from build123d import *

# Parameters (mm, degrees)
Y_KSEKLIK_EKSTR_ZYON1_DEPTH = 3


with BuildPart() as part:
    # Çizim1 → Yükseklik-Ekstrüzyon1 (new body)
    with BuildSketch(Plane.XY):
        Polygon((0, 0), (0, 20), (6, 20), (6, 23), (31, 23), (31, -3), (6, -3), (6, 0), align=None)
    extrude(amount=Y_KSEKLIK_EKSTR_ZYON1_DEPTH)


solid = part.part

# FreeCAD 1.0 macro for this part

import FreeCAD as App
import Part
import Sketcher

V = App.Vector
Q = App.Units.Quantity


def add_polygon(sketch, points):
    """Adds a closed chain of lines whose ends are joined by coincident constraints."""
    first, n = sketch.GeometryCount, len(points)
    for a, b in zip(points, points[1:] + points[:1]):
        sketch.addGeometry(Part.LineSegment(App.Vector(*a, 0), App.Vector(*b, 0)), False)
    for i in range(n):
        sketch.addConstraint(Sketcher.Constraint("Coincident", first + i, 2, first + (i + 1) % n, 1))

doc = App.newDocument("Part")
body = doc.addObject("PartDesign::Body", "Body")

# Sketch on XY plane
sketch1 = body.newObject("Sketcher::SketchObject", "Sketch")
sketch1.AttachmentSupport = (doc.getObject("XY_Plane"), [""])
sketch1.MapMode = "FlatFace"
add_polygon(sketch1, [(0, 20), (0, 0), (6, 0), (6, -3), (31, -3), (31, 23), (6, 23), (6, 20)])  # lines 0-7
sketch1.addConstraint(Sketcher.Constraint("Vertical", 0))
sketch1.addConstraint(Sketcher.Constraint("Horizontal", 1))
sketch1.addConstraint(Sketcher.Constraint("Vertical", 2))
sketch1.addConstraint(Sketcher.Constraint("Horizontal", 3))
sketch1.addConstraint(Sketcher.Constraint("Vertical", 4))
sketch1.addConstraint(Sketcher.Constraint("Horizontal", 5))
sketch1.addConstraint(Sketcher.Constraint("Vertical", 6))
sketch1.addConstraint(Sketcher.Constraint("Horizontal", 7))
sketch1.addConstraint(Sketcher.Constraint("Coincident", 0, 2, -1, 1))
sketch1.addConstraint(Sketcher.Constraint("Vertical", 2, 2, 5, 2))
sketch1.addConstraint(Sketcher.Constraint("Equal", 2, 6))
sketch1.addConstraint(Sketcher.Constraint("DistanceX", 1, 1, 1, 2, Q("6 mm")))
sketch1.addConstraint(Sketcher.Constraint("DistanceX", 3, 1, 3, 2, Q("25 mm")))
sketch1.addConstraint(Sketcher.Constraint("DistanceY", 0, 2, 0, 1, Q("20 mm")))
sketch1.addConstraint(Sketcher.Constraint("DistanceY", 2, 2, 2, 1, Q("3 mm")))
pad1 = body.newObject("PartDesign::Pad", "Pad")
pad1.Profile = sketch1
pad1.Length = 3

doc.recompute()
